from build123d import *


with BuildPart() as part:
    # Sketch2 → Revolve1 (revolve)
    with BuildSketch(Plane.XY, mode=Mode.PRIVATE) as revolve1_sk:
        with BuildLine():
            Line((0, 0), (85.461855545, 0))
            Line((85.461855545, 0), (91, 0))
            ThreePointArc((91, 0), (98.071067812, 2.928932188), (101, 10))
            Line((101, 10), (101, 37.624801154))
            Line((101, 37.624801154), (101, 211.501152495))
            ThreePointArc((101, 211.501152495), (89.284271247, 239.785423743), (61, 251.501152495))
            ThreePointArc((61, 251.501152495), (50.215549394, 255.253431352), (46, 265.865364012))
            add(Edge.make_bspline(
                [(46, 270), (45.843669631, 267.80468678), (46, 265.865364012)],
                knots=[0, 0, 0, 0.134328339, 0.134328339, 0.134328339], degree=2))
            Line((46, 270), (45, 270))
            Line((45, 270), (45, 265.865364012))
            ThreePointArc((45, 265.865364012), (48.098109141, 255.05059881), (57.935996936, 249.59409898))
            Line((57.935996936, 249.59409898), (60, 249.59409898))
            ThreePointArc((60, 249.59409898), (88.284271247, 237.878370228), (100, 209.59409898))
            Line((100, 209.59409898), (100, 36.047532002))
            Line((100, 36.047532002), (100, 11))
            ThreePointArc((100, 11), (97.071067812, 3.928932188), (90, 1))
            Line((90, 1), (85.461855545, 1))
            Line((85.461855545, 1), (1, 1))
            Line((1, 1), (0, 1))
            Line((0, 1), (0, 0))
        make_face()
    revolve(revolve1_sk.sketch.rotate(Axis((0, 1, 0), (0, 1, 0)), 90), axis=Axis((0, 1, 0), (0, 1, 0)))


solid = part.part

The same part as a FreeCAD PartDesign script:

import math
import FreeCAD as App
import Part
import Sketcher
from FreeCAD import Vector

doc = App.newDocument("Part")
body = doc.addObject("PartDesign::Body", "Body")

# Sketch on XY plane
sketch1 = body.newObject("Sketcher::SketchObject", "Sketch")
sketch1.AttachmentSupport = (doc.getObject("XY_Plane"), [""])
sketch1.MapMode = "FlatFace"
sketch1.addGeometry([
    Part.LineSegment(Vector(0, 0, 0), Vector(91, 0, 0)),  # 0
    Part.ArcOfCircle(Part.Circle(Vector(91, 10, 0), Vector(0, 0, 1), 10), math.radians(-90), math.radians(0)),  # 1
    Part.LineSegment(Vector(101, 10, 0), Vector(101, 211.501152, 0)),  # 2
    Part.ArcOfCircle(Part.Circle(Vector(61, 211.501152, 0), Vector(0, 0, 1), 40), math.radians(0), math.radians(90)),  # 3
    Part.ArcOfCircle(Part.Circle(Vector(59.710327, 265.168467, 0), Vector(0, 0, 1), 13.728028), math.radians(177.090156), math.radians(275.390572)),  # 4
    Part.BSplineCurve([Vector(46, 270, 0), Vector(45.84367, 267.804687, 0), Vector(46, 265.865364, 0)], [3, 3], [0, 0.134328339], False, 2, [1, 1, 1], False),  # 5
    Part.LineSegment(Vector(46, 270, 0), Vector(45, 270, 0)),  # 6
    Part.LineSegment(Vector(45, 270, 0), Vector(45, 265.865364, 0)),  # 7
    Part.ArcOfCircle(Part.Circle(Vector(59.603631, 264.19773, 0), Vector(0, 0, 1), 14.698539), math.radians(173.485436), math.radians(263.485436)),  # 8
    Part.LineSegment(Vector(57.935997, 249.594099, 0), Vector(60, 249.594099, 0)),  # 9
    Part.ArcOfCircle(Part.Circle(Vector(60, 209.594099, 0), Vector(0, 0, 1), 40), math.radians(0), math.radians(90)),  # 10
    Part.LineSegment(Vector(100, 209.594099, 0), Vector(100, 11, 0)),  # 11
    Part.ArcOfCircle(Part.Circle(Vector(90, 11, 0), Vector(0, 0, 1), 10), math.radians(-90), math.radians(0)),  # 12
    Part.LineSegment(Vector(90, 1, 0), Vector(0, 1, 0)),  # 13
    Part.LineSegment(Vector(0, 1, 0), Vector(0, 0, 0)),  # 14
], False)
sketch1.addConstraint([
    Sketcher.Constraint("Block", 5),
    Sketcher.Constraint("Tangent", 0, 2, 1, 1),
    Sketcher.Constraint("Tangent", 1, 2, 2, 1),
    Sketcher.Constraint("Tangent", 2, 2, 3, 1),
    Sketcher.Constraint("Coincident", 3, 2, 4, 2),
    Sketcher.Constraint("Coincident", 4, 1, 5, 2),
    Sketcher.Constraint("Coincident", 5, 1, 6, 1),
    Sketcher.Constraint("Coincident", 6, 2, 7, 1),
    Sketcher.Constraint("Coincident", 7, 2, 8, 1),
    Sketcher.Constraint("Coincident", 8, 2, 9, 1),
    Sketcher.Constraint("Tangent", 9, 2, 10, 2),
    Sketcher.Constraint("Tangent", 10, 1, 11, 1),
    Sketcher.Constraint("Tangent", 11, 2, 12, 2),
    Sketcher.Constraint("Tangent", 12, 1, 13, 1),
    Sketcher.Constraint("Coincident", 13, 2, 14, 1),
    Sketcher.Constraint("Coincident", 14, 2, 0, 1),
    Sketcher.Constraint("Horizontal", 0),
    Sketcher.Constraint("Vertical", 2),
    Sketcher.Constraint("Horizontal", 6),
    Sketcher.Constraint("Vertical", 7),
    Sketcher.Constraint("Horizontal", 9),
    Sketcher.Constraint("Vertical", 11),
    Sketcher.Constraint("Horizontal", 13),
    Sketcher.Constraint("Vertical", 14),
    Sketcher.Constraint("Coincident", 14, 2, -1, 1),
    Sketcher.Constraint("Equal", 3, 10),
    Sketcher.Constraint("Equal", 1, 12),
    Sketcher.Constraint("Horizontal", 4, 1, 7, 2),
    Sketcher.Constraint("Equal", 6, 14),
    Sketcher.Constraint("Radius", 1, 10.0),
    Sketcher.Constraint("Radius", 3, 40.0),
    Sketcher.Constraint("DistanceX", 0, 1, 0, 2, 91.0),
    Sketcher.Constraint("DistanceX", 6, 2, 6, 1, 1.0),
    Sketcher.Constraint("DistanceX", 13, 2, 13, 1, 90.0),
    Sketcher.Constraint("DistanceX", -1, 1, 3, 2, 61.0),
    Sketcher.Constraint("Radius", 8, 14.698539),
    Sketcher.Constraint("DistanceY", 11, 2, 11, 1, 198.594099),
    Sketcher.Constraint("Radius", 4, 13.728028),
    Sketcher.Constraint("DistanceX", 9, 1, 9, 2, 2.064003),
    Sketcher.Constraint("DistanceY", 2, 1, 2, 2, 201.501152),
])
revolution = body.newObject("PartDesign::Revolution", "Revolution")
revolution.Profile = sketch1
revolution.ReferenceAxis = (sketch1, ["V_Axis"])
revolution.Angle = 360

doc.recompute()
